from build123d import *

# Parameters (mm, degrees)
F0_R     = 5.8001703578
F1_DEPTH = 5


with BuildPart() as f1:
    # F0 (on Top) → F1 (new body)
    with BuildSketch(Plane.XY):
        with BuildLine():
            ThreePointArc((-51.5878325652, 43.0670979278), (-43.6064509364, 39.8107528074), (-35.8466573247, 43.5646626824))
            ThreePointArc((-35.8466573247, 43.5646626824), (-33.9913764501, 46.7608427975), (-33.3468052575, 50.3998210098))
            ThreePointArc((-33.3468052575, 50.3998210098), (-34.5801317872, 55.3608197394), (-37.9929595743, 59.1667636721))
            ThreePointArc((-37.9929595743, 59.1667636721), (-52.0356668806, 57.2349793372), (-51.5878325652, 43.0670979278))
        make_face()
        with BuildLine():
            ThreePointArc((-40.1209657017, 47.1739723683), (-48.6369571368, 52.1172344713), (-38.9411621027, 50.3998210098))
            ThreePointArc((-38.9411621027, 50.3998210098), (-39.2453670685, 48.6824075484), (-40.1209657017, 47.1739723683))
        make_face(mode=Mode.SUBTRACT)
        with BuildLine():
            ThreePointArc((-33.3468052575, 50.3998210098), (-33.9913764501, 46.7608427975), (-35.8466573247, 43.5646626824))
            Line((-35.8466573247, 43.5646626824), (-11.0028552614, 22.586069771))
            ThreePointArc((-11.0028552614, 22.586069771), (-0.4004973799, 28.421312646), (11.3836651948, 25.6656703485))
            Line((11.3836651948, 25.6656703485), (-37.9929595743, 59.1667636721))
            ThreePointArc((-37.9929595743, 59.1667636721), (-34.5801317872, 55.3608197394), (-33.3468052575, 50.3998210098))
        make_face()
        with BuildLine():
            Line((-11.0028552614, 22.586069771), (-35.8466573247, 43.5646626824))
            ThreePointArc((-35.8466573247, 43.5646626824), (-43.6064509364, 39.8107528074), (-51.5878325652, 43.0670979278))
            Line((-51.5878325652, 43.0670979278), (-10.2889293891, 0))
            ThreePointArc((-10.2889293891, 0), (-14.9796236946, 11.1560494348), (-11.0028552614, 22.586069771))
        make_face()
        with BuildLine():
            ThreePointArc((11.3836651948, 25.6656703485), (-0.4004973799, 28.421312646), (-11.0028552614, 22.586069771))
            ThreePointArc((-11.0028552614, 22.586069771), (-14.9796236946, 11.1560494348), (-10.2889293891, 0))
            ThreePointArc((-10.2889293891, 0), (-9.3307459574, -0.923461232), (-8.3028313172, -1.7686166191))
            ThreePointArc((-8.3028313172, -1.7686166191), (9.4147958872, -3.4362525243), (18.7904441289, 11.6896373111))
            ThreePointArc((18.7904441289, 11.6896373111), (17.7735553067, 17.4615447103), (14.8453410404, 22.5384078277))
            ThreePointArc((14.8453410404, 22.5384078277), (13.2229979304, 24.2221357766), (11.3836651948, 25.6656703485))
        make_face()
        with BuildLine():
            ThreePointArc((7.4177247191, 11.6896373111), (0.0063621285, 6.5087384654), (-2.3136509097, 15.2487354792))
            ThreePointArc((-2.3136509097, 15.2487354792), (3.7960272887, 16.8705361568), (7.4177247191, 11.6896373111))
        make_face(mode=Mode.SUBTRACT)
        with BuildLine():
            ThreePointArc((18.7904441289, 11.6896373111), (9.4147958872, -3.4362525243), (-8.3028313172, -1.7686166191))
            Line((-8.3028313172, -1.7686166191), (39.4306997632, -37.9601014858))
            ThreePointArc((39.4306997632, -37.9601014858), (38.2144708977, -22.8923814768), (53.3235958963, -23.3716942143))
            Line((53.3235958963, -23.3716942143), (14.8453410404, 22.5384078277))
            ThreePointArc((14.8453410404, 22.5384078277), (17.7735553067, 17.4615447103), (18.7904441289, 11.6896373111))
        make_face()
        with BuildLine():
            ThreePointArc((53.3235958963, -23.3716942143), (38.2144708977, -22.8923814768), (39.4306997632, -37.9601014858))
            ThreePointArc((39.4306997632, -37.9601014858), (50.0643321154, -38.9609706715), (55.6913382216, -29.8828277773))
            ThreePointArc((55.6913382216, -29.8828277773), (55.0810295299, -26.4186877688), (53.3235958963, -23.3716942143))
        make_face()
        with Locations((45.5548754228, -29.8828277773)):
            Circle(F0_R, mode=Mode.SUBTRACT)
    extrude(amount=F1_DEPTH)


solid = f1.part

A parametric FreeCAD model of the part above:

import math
import FreeCAD as App
import Part
import Sketcher
from FreeCAD import Vector

doc = App.newDocument("Part")
body = doc.addObject("PartDesign::Body", "Body")

# Sketch on XY plane
sketch1 = body.newObject("Sketcher::SketchObject", "Sketch")
sketch1.AttachmentSupport = (doc.getObject("XY_Plane"), [""])
sketch1.MapMode = "FlatFace"
sketch1.addGeometry(Part.LineSegment(Vector(11.4, 25.7, 0), Vector(-38, 59.2, 0)), False)
sketch1.addGeometry(Part.ArcOfCircle(Part.Circle(Vector(-43.9, 50.4, 0), Vector(0, 0, 1), 10.6), math.radians(56), math.radians(224)), False)
sketch1.addGeometry(Part.LineSegment(Vector(-51.6, 43.1, 0), Vector(-10.3, 0, 0)), False)
sketch1.addGeometry(Part.ArcOfCircle(Part.Circle(Vector(1.9, 11.7, 0), Vector(0, 0, 1), 16.9), math.radians(-136.2), math.radians(-127.17)), False)
sketch1.addGeometry(Part.LineSegment(Vector(-8.3, -1.8, 0), Vector(39.4, -38, 0)), False)
sketch1.addGeometry(Part.ArcOfCircle(Part.Circle(Vector(45.6, -29.9, 0), Vector(0, 0, 1), 10.1), math.radians(-127), math.radians(0)), False)
sketch1.addGeometry(Part.ArcOfCircle(Part.Circle(Vector(45.6, -29.9, 0), Vector(0, 0, 1), 10.1), math.radians(0), math.radians(40)), False)
sketch1.addGeometry(Part.LineSegment(Vector(53.3, -23.4, 0), Vector(14.8, 22.5, 0)), False)
sketch1.addGeometry(Part.ArcOfCircle(Part.Circle(Vector(1.9, 11.7, 0), Vector(0, 0, 1), 16.9), math.radians(39.97), math.radians(55.84)), False)
sketch1.addGeometry(Part.Circle(Vector(45.6, -29.9, 0), Vector(0, 0, 1), 5.8), False)
sketch1.addGeometry(Part.ArcOfCircle(Part.Circle(Vector(-43.9, 50.4, 0), Vector(0, 0, 1), 5), math.radians(-40), math.radians(0)), False)
sketch1.addGeometry(Part.ArcOfCircle(Part.Circle(Vector(-43.9, 50.4, 0), Vector(0, 0, 1), 5), math.radians(0), math.radians(320)), False)
sketch1.addGeometry(Part.ArcOfCircle(Part.Circle(Vector(1.9, 11.7, 0), Vector(0, 0, 1), 5.5), math.radians(0), math.radians(140)), False)
sketch1.addGeometry(Part.ArcOfCircle(Part.Circle(Vector(1.9, 11.7, 0), Vector(0, 0, 1), 5.5), math.radians(140), math.radians(360)), False)
sketch1.addConstraint(Sketcher.Constraint("Tangent", 0, 2, 1, 1))
sketch1.addConstraint(Sketcher.Constraint("Tangent", 1, 2, 2, 1))
sketch1.addConstraint(Sketcher.Constraint("Tangent", 2, 2, 3, 1))
sketch1.addConstraint(Sketcher.Constraint("Tangent", 3, 2, 4, 1))
sketch1.addConstraint(Sketcher.Constraint("Tangent", 4, 2, 5, 1))
sketch1.addConstraint(Sketcher.Constraint("Tangent", 5, 2, 6, 1))
sketch1.addConstraint(Sketcher.Constraint("Tangent", 6, 2, 7, 1))
sketch1.addConstraint(Sketcher.Constraint("Tangent", 7, 2, 8, 1))
sketch1.addConstraint(Sketcher.Constraint("Tangent", 8, 2, 0, 1))
sketch1.addConstraint(Sketcher.Constraint("Tangent", 10, 1, 11, 2))
sketch1.addConstraint(Sketcher.Constraint("Coincident", 11, 1, 10, 2))
sketch1.addConstraint(Sketcher.Constraint("Tangent", 12, 1, 13, 2))
sketch1.addConstraint(Sketcher.Constraint("Coincident", 13, 1, 12, 2))
sketch1.addConstraint(Sketcher.Constraint("Coincident", 8, 3, 3, 3))
sketch1.addConstraint(Sketcher.Constraint("Coincident", 9, 3, 5, 3))
sketch1.addConstraint(Sketcher.Constraint("Coincident", 10, 3, 1, 3))
sketch1.addConstraint(Sketcher.Constraint("Coincident", 12, 3, 3, 3))
sketch1.addConstraint(Sketcher.Constraint("Equal", 5, 6))
sketch1.addConstraint(Sketcher.Constraint("Equal", 3, 8))
sketch1.addConstraint(Sketcher.Constraint("PointOnObject", 2, 2, -1))
sketch1.addConstraint(Sketcher.Constraint("Horizontal", 9, 3, 5, 2))
sketch1.addConstraint(Sketcher.Constraint("Horizontal", 10, 3, 11, 1))
sketch1.addConstraint(Sketcher.Constraint("Horizontal", 13, 3, 12, 1))
sketch1.addConstraint(Sketcher.Constraint("Radius", 10, 5.0))
sketch1.addConstraint(Sketcher.Constraint("Diameter", 9, 11.600341))
sketch1.addConstraint(Sketcher.Constraint("Radius", 3, 16.889249))
sketch1.addConstraint(Sketcher.Constraint("Radius", 12, 5.51653))
sketch1.addConstraint(Sketcher.Constraint("Radius", 1, 10.594357))
sketch1.addConstraint(Sketcher.Constraint("Radius", 5, 10.136463))
sketch1.addConstraint(Sketcher.Constraint("DistanceX", -1, 1, 4, 2, 39.4307))
sketch1.addConstraint(Sketcher.Constraint("DistanceY", 4, 2, -1, 1, 37.960101))
sketch1.addConstraint(Sketcher.Constraint("DistanceX", 2, 2, 3, 2, 1.986098))
sketch1.addConstraint(Sketcher.Constraint("DistanceY", 8, 3, 13, 1, 3.559098))
sketch1.addConstraint(Sketcher.Constraint("DistanceY", -1, 1, 1, 3, 50.399821))
sketch1.addConstraint(Sketcher.Constraint("DistanceX", 0, 2, -1, 1, 37.99296))
sketch1.addConstraint(Sketcher.Constraint("DistanceY", 10, 1, 10, 3, 3.225849))
pad1 = body.newObject("PartDesign::Pad", "Pad")
pad1.Profile = sketch1
pad1.Length = 5

doc.recompute()
